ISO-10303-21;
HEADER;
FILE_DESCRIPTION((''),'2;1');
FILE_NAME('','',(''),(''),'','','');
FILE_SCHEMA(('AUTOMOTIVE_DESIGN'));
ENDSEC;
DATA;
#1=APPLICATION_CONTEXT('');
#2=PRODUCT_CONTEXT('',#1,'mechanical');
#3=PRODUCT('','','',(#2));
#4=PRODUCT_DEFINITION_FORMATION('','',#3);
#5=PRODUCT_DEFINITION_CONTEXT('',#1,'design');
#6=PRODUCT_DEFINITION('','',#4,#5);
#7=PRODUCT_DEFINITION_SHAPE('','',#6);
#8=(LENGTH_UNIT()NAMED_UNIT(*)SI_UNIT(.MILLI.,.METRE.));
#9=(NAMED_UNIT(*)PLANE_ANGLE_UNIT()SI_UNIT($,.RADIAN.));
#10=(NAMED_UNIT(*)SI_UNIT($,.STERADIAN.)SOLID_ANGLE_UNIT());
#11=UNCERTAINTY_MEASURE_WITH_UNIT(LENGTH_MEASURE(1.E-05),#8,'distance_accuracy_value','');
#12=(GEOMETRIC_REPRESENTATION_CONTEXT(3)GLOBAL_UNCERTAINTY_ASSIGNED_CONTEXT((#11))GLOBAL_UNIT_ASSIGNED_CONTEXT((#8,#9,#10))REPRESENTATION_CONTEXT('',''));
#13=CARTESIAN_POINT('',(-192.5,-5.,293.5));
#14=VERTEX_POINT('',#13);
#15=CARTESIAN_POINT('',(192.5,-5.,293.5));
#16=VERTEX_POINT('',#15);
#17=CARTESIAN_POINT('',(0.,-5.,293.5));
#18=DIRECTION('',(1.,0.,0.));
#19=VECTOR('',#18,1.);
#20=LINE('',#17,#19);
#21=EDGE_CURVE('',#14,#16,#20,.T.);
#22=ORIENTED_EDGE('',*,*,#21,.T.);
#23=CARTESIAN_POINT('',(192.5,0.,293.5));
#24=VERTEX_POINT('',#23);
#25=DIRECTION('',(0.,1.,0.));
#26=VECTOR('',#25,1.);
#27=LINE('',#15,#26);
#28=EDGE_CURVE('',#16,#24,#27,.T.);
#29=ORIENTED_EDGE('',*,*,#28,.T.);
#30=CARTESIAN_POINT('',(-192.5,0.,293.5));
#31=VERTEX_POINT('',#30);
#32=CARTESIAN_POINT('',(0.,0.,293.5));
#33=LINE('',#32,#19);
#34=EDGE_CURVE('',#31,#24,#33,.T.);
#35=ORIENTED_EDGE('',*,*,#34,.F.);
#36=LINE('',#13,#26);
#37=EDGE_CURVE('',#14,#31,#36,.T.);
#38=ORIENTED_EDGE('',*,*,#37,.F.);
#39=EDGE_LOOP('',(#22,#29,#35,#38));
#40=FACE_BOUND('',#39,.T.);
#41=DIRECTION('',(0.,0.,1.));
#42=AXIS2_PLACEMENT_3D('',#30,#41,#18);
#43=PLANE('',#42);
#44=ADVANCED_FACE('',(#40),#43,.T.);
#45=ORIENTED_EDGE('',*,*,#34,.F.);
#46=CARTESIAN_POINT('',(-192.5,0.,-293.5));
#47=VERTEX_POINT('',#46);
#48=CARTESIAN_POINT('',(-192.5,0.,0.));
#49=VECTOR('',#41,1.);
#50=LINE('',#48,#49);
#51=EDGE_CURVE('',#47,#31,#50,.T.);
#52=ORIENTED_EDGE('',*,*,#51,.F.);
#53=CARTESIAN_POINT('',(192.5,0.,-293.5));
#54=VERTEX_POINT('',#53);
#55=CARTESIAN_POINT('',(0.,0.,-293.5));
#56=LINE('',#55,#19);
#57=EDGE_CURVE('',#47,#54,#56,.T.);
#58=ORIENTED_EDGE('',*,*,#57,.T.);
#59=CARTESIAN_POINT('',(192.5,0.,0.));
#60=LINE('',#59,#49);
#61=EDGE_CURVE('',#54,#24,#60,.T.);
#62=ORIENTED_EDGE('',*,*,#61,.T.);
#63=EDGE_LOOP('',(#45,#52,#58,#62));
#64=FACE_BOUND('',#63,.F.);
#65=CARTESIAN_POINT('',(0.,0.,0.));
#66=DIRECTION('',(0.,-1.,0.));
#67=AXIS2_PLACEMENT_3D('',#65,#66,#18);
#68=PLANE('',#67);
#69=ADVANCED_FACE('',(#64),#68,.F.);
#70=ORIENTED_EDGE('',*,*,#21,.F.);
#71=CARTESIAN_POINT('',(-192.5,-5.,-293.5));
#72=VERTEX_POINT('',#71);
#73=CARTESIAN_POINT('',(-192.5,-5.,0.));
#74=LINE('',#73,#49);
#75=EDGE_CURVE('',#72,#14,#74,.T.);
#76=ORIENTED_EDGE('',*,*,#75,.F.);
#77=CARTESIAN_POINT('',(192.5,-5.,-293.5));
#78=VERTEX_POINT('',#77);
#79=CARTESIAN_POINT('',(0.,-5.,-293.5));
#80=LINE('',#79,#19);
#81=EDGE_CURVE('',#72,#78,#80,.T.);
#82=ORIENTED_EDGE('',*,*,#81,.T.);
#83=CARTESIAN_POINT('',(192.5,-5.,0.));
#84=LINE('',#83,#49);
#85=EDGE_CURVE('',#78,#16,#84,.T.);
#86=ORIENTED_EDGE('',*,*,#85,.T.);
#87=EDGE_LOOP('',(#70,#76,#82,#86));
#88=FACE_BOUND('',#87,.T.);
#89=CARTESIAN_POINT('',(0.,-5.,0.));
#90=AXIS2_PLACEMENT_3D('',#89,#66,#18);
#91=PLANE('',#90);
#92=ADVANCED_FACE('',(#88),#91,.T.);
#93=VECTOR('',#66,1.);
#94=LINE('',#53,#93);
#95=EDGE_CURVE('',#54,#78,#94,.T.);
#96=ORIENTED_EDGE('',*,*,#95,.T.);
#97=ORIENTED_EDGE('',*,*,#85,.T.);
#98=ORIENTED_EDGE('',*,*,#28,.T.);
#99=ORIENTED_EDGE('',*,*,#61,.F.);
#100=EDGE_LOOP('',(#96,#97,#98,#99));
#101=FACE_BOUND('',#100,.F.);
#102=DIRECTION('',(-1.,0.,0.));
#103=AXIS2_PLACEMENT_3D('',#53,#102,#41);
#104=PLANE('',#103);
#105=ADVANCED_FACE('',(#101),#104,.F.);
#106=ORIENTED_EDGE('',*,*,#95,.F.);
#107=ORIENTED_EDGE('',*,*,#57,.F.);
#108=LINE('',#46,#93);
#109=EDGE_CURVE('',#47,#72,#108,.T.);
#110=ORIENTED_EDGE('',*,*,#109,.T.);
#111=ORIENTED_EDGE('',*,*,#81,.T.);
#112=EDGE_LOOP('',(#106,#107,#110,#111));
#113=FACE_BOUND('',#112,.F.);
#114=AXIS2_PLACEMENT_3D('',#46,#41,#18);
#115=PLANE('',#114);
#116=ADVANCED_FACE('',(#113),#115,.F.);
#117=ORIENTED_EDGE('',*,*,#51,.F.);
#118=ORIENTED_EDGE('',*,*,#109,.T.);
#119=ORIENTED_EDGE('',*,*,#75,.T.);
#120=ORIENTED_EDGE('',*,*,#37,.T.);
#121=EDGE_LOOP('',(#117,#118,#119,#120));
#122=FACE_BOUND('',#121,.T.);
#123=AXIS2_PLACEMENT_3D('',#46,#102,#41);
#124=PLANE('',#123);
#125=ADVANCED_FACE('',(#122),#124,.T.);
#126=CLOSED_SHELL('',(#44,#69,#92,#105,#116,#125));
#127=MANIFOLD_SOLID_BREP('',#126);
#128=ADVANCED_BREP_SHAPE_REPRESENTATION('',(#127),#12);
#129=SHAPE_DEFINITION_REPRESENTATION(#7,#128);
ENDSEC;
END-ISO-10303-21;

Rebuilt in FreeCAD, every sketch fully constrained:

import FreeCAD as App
import Part
import Sketcher
from FreeCAD import Vector
Q = App.Units.Quantity


def add_polygon(sketch, points):
    """Adds a closed chain of lines whose ends are joined by coincident constraints."""
    first, n = sketch.GeometryCount, len(points)
    for a, b in zip(points, points[1:] + points[:1]):
        sketch.addGeometry(Part.LineSegment(App.Vector(*a, 0), App.Vector(*b, 0)), False)
    for i in range(n):
        sketch.addConstraint(Sketcher.Constraint("Coincident", first + i, 2, first + (i + 1) % n, 1))

doc = App.newDocument("Part")
body = doc.addObject("PartDesign::Body", "Body")

# Sketch on XZ plane
sketch1 = doc.addObject("Sketcher::SketchObject", "Sketch")
body.addObject(sketch1)
sketch1.AttachmentSupport = (doc.XZ_Plane, [""])
sketch1.MapMode = "FlatFace"
add_polygon(sketch1, [(-192.5, 293.5), (-192.5, -293.5), (192.5, -293.5), (192.5, 293.5)])  # lines 0-3
sketch1.addConstraint(Sketcher.Constraint("Vertical", 0))
sketch1.addConstraint(Sketcher.Constraint("Horizontal", 1))
sketch1.addConstraint(Sketcher.Constraint("Vertical", 2))
sketch1.addConstraint(Sketcher.Constraint("Horizontal", 3))
sketch1.addConstraint(Sketcher.Constraint("Symmetric", 0, 2, 2, 2, -1, 1))
sketch1.addConstraint(Sketcher.Constraint("DistanceX", 1, 1, 1, 2, Q("385 mm")))
sketch1.addConstraint(Sketcher.Constraint("DistanceY", 0, 2, 0, 1, Q("587 mm")))
pad1 = doc.addObject("PartDesign::Pad", "Pad")
body.addObject(pad1)
pad1.Profile = sketch1
pad1.Length = 0.5

# Sketch on XZ plane
sketch2 = doc.addObject("Sketcher::SketchObject", "Sketch001")
body.addObject(sketch2)
sketch2.AttachmentSupport = (doc.XZ_Plane, [""])
sketch2.MapMode = "FlatFace"
add_polygon(sketch2, [(-192.5, 293.5), (-192.5, -293.5), (192.5, -293.5), (192.5, 293.5)])  # lines 0-3
sketch2.addConstraint(Sketcher.Constraint("Vertical", 0))
sketch2.addConstraint(Sketcher.Constraint("Horizontal", 1))
sketch2.addConstraint(Sketcher.Constraint("Vertical", 2))
sketch2.addConstraint(Sketcher.Constraint("Horizontal", 3))
sketch2.addConstraint(Sketcher.Constraint("Symmetric", 0, 2, 2, 2, -1, 1))
sketch2.addConstraint(Sketcher.Constraint("DistanceX", 1, 1, 1, 2, Q("385 mm")))
sketch2.addConstraint(Sketcher.Constraint("DistanceY", 0, 2, 0, 1, Q("587 mm")))
pad2 = doc.addObject("PartDesign::Pad", "Pad001")
body.addObject(pad2)
pad2.Profile = sketch2
pad2.Length = 5

doc.recompute()
